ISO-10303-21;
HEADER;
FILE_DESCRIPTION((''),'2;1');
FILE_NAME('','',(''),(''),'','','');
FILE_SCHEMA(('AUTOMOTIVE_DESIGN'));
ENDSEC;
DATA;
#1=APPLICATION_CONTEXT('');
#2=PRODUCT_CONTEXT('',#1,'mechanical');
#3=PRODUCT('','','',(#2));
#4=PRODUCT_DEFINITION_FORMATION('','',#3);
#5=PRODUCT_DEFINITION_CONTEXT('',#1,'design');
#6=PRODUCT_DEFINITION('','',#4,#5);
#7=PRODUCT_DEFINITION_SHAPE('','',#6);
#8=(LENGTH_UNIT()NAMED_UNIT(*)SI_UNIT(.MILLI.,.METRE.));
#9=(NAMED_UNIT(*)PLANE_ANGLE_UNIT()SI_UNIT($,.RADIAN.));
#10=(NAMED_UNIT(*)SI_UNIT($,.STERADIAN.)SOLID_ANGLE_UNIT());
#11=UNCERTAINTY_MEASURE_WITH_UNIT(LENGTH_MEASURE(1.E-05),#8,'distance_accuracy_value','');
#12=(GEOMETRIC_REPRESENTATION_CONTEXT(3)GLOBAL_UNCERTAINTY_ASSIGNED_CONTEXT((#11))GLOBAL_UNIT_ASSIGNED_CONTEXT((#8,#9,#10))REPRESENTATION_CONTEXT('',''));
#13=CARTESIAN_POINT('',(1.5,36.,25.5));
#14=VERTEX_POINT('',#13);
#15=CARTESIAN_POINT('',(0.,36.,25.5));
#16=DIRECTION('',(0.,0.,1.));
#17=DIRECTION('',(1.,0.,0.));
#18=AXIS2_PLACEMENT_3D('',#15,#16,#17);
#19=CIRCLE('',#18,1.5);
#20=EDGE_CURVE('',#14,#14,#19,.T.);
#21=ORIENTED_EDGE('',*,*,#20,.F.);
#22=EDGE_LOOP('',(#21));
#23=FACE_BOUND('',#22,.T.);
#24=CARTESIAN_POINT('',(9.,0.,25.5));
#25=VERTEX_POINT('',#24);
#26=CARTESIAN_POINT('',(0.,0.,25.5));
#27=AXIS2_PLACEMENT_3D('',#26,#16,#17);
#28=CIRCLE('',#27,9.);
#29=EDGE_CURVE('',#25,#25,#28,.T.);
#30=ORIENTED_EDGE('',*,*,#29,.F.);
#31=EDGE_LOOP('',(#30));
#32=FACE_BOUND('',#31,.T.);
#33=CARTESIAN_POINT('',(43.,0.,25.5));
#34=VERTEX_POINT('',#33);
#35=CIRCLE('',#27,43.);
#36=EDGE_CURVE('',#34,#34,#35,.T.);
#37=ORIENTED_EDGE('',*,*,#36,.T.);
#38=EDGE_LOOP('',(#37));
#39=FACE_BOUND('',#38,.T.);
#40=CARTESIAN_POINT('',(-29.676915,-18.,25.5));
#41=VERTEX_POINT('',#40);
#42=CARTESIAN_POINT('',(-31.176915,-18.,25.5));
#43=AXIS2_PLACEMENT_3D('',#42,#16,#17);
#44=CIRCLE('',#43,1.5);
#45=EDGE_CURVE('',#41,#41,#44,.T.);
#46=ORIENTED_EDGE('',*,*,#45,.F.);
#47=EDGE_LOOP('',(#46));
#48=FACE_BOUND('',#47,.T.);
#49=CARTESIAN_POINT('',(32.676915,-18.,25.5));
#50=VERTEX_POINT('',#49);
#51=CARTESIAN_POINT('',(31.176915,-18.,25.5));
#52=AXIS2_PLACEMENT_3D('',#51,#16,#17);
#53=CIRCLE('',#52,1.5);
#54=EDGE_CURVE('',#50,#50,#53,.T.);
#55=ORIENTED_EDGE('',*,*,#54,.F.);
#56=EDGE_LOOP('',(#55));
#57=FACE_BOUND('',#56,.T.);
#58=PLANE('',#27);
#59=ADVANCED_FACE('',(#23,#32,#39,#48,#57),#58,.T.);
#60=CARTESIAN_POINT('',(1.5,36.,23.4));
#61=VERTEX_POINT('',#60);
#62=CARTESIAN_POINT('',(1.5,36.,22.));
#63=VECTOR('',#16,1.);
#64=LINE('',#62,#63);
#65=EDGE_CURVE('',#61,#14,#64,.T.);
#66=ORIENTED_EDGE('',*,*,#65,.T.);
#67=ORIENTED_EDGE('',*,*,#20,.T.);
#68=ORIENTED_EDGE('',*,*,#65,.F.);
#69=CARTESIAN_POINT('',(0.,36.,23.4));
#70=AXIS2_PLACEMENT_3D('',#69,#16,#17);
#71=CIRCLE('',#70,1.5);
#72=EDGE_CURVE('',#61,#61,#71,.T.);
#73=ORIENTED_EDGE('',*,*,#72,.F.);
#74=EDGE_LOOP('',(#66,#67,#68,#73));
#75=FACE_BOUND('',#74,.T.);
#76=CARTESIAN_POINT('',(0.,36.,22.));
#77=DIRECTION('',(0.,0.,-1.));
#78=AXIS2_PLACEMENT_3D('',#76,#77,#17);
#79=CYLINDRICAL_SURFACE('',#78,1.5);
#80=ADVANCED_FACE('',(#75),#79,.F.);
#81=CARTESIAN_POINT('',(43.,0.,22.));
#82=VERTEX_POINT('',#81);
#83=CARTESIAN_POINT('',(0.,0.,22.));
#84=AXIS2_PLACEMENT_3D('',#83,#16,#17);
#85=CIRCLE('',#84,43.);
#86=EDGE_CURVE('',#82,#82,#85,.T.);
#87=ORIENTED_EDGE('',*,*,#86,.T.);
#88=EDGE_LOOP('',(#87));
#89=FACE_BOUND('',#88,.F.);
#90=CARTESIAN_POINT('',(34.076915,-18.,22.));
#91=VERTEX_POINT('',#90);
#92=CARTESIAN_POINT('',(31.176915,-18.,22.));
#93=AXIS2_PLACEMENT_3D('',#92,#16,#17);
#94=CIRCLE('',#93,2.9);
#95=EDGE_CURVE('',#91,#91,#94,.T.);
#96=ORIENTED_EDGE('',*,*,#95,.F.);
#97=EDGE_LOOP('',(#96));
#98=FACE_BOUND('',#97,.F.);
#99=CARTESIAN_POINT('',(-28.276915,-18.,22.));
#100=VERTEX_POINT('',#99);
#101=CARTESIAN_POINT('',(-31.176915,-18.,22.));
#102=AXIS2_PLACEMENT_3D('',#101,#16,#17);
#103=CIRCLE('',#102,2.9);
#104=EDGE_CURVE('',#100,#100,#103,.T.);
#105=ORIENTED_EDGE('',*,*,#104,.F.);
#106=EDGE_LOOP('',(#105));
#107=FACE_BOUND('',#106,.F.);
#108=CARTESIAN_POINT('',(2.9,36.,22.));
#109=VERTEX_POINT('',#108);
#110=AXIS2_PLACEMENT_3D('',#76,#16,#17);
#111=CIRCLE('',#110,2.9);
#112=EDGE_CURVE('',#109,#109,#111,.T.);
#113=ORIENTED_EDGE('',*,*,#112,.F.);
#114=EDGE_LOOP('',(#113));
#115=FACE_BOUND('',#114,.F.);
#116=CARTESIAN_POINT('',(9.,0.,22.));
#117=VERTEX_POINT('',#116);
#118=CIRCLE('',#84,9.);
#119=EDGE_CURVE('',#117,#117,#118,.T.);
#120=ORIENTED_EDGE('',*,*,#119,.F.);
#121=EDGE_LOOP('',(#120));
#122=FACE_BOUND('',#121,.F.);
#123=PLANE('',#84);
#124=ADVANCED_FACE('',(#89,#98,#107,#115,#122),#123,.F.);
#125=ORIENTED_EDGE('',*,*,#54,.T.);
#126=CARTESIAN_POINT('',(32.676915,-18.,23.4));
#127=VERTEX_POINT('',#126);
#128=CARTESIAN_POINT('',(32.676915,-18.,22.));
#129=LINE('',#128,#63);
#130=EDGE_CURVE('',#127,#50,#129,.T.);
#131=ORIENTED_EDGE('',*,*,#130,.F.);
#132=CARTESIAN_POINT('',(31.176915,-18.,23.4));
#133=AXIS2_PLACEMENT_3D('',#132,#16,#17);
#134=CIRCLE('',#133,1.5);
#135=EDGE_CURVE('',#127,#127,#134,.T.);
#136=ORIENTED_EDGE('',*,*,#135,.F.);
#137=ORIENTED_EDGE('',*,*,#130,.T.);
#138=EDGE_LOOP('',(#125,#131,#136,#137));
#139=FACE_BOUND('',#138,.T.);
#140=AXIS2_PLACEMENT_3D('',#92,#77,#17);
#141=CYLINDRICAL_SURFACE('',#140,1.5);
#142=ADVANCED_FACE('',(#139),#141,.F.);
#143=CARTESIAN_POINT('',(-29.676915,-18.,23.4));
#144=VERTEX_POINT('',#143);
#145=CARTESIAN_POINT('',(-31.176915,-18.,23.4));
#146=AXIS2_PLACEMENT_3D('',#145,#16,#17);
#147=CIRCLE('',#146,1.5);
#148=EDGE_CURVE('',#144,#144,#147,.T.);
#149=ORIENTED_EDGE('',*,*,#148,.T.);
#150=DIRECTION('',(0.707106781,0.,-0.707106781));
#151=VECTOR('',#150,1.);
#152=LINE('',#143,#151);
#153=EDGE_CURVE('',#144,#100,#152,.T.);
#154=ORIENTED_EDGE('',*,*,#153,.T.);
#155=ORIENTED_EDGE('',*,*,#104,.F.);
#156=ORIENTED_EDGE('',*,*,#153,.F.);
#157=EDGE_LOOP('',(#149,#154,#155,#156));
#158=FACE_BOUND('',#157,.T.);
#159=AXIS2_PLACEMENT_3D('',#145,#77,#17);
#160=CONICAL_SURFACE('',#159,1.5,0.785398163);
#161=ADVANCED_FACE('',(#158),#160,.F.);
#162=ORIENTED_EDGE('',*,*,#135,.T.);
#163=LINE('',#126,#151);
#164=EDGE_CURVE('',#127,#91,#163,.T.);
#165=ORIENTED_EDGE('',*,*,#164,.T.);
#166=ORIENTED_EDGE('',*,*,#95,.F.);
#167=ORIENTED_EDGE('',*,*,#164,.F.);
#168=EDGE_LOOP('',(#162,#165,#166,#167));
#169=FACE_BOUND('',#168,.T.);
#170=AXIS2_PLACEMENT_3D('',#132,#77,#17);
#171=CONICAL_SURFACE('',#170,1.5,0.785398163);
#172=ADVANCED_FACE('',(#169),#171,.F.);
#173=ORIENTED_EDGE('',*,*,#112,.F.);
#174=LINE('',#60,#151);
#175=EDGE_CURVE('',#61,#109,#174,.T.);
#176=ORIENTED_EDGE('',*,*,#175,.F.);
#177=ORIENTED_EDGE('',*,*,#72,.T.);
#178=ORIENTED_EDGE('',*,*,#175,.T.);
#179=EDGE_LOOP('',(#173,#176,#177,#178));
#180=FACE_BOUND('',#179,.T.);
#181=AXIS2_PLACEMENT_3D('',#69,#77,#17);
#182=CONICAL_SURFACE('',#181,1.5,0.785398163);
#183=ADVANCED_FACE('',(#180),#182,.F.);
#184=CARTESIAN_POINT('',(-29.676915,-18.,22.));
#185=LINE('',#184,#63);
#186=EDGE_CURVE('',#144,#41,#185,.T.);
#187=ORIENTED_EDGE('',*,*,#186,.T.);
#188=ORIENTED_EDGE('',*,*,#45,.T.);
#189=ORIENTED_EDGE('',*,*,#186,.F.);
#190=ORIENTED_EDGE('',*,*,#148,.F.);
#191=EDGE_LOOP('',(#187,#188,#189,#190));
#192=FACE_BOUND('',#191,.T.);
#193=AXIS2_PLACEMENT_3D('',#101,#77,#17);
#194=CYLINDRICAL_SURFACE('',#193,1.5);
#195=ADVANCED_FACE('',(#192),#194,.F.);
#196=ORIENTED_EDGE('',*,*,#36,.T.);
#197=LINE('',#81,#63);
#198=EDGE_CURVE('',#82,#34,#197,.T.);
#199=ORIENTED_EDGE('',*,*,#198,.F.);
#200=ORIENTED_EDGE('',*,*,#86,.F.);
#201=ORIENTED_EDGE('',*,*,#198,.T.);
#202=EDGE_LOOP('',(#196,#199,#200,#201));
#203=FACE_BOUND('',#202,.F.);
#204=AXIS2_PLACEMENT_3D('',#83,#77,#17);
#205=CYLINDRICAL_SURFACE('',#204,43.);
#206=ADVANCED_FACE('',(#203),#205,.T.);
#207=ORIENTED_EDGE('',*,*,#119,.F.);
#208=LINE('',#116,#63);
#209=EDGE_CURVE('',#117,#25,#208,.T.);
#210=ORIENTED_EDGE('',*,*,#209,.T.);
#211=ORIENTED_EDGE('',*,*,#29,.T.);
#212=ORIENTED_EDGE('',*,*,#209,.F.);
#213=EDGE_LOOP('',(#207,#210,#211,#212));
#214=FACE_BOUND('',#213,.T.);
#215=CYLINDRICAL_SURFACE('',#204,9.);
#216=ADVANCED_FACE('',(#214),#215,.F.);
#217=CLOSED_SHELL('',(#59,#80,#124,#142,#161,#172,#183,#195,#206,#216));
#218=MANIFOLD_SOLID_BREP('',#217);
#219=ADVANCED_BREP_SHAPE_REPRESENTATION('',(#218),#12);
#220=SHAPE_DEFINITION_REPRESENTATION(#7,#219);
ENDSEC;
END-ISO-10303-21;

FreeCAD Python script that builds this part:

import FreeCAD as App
import Part
import Sketcher


def edges_at(feature, points):
    """Names of the edges that pass closest to the given points."""
    edges = feature.Shape.Edges
    near = lambda p: min(range(len(edges)), key=lambda i: edges[i].distToShape(Part.Vertex(*p))[0])
    return sorted({f"Edge{near(p) + 1}" for p in points})

doc = App.newDocument("Part")
body = doc.addObject("PartDesign::Body", "Body")

sketch1 = doc.addObject("Sketcher::SketchObject", "Sketch")
body.addObject(sketch1)
sketch1.AttachmentSupport = (doc.XY_Plane, [""])
sketch1.MapMode = "FlatFace"
sketch1.AttachmentOffset = App.Placement(App.Vector(0, 0, 22), App.Rotation())
sketch1.addGeometry([
    Part.Circle(App.Vector(0, 0, 0), App.Vector(0, 0, 1), 43),
    Part.Circle(App.Vector(-31.2, -18, 0), App.Vector(0, 0, 1), 1.5),
    Part.Circle(App.Vector(31.2, -18, 0), App.Vector(0, 0, 1), 1.5),
    Part.Circle(App.Vector(0, 0, 0), App.Vector(0, 0, 1), 9),
    Part.Circle(App.Vector(0, 36, 0), App.Vector(0, 0, 1), 1.5),
], False)
sketch1.addConstraint([
    Sketcher.Constraint("Coincident", 0, 3, -1, 1),
    Sketcher.Constraint("Coincident", 3, 3, -1, 1),
    Sketcher.Constraint("Equal", 1, 2),
    Sketcher.Constraint("Equal", 2, 4),
    Sketcher.Constraint("Symmetric", 1, 3, 2, 3, -2),
    Sketcher.Constraint("PointOnObject", 4, 3, -2),
    Sketcher.Constraint("Diameter", 0, 86.0),
    Sketcher.Constraint("Diameter", 1, 3.0),
    Sketcher.Constraint("Diameter", 3, 18.0),
    Sketcher.Constraint("DistanceY", 1, 3, -1, 1, 18.0),
    Sketcher.Constraint("DistanceY", -1, 1, 4, 3, 36.0),
    Sketcher.Constraint("DistanceX", 1, 3, 2, 3, 62.35383),
])
pad1 = doc.addObject("PartDesign::Pad", "Pad")
body.addObject(pad1)
pad1.Profile = sketch1
pad1.Length = 3.5
doc.recompute()

chamfer = doc.addObject("PartDesign::Chamfer", "Chamfer")
body.addObject(chamfer)
chamfer.Base = (pad1, edges_at(pad1, [(-32.677, -18, 22), (-1.5, 36, 22), (29.677, -18, 22)]))
chamfer.Size = 1.4

doc.recompute()
